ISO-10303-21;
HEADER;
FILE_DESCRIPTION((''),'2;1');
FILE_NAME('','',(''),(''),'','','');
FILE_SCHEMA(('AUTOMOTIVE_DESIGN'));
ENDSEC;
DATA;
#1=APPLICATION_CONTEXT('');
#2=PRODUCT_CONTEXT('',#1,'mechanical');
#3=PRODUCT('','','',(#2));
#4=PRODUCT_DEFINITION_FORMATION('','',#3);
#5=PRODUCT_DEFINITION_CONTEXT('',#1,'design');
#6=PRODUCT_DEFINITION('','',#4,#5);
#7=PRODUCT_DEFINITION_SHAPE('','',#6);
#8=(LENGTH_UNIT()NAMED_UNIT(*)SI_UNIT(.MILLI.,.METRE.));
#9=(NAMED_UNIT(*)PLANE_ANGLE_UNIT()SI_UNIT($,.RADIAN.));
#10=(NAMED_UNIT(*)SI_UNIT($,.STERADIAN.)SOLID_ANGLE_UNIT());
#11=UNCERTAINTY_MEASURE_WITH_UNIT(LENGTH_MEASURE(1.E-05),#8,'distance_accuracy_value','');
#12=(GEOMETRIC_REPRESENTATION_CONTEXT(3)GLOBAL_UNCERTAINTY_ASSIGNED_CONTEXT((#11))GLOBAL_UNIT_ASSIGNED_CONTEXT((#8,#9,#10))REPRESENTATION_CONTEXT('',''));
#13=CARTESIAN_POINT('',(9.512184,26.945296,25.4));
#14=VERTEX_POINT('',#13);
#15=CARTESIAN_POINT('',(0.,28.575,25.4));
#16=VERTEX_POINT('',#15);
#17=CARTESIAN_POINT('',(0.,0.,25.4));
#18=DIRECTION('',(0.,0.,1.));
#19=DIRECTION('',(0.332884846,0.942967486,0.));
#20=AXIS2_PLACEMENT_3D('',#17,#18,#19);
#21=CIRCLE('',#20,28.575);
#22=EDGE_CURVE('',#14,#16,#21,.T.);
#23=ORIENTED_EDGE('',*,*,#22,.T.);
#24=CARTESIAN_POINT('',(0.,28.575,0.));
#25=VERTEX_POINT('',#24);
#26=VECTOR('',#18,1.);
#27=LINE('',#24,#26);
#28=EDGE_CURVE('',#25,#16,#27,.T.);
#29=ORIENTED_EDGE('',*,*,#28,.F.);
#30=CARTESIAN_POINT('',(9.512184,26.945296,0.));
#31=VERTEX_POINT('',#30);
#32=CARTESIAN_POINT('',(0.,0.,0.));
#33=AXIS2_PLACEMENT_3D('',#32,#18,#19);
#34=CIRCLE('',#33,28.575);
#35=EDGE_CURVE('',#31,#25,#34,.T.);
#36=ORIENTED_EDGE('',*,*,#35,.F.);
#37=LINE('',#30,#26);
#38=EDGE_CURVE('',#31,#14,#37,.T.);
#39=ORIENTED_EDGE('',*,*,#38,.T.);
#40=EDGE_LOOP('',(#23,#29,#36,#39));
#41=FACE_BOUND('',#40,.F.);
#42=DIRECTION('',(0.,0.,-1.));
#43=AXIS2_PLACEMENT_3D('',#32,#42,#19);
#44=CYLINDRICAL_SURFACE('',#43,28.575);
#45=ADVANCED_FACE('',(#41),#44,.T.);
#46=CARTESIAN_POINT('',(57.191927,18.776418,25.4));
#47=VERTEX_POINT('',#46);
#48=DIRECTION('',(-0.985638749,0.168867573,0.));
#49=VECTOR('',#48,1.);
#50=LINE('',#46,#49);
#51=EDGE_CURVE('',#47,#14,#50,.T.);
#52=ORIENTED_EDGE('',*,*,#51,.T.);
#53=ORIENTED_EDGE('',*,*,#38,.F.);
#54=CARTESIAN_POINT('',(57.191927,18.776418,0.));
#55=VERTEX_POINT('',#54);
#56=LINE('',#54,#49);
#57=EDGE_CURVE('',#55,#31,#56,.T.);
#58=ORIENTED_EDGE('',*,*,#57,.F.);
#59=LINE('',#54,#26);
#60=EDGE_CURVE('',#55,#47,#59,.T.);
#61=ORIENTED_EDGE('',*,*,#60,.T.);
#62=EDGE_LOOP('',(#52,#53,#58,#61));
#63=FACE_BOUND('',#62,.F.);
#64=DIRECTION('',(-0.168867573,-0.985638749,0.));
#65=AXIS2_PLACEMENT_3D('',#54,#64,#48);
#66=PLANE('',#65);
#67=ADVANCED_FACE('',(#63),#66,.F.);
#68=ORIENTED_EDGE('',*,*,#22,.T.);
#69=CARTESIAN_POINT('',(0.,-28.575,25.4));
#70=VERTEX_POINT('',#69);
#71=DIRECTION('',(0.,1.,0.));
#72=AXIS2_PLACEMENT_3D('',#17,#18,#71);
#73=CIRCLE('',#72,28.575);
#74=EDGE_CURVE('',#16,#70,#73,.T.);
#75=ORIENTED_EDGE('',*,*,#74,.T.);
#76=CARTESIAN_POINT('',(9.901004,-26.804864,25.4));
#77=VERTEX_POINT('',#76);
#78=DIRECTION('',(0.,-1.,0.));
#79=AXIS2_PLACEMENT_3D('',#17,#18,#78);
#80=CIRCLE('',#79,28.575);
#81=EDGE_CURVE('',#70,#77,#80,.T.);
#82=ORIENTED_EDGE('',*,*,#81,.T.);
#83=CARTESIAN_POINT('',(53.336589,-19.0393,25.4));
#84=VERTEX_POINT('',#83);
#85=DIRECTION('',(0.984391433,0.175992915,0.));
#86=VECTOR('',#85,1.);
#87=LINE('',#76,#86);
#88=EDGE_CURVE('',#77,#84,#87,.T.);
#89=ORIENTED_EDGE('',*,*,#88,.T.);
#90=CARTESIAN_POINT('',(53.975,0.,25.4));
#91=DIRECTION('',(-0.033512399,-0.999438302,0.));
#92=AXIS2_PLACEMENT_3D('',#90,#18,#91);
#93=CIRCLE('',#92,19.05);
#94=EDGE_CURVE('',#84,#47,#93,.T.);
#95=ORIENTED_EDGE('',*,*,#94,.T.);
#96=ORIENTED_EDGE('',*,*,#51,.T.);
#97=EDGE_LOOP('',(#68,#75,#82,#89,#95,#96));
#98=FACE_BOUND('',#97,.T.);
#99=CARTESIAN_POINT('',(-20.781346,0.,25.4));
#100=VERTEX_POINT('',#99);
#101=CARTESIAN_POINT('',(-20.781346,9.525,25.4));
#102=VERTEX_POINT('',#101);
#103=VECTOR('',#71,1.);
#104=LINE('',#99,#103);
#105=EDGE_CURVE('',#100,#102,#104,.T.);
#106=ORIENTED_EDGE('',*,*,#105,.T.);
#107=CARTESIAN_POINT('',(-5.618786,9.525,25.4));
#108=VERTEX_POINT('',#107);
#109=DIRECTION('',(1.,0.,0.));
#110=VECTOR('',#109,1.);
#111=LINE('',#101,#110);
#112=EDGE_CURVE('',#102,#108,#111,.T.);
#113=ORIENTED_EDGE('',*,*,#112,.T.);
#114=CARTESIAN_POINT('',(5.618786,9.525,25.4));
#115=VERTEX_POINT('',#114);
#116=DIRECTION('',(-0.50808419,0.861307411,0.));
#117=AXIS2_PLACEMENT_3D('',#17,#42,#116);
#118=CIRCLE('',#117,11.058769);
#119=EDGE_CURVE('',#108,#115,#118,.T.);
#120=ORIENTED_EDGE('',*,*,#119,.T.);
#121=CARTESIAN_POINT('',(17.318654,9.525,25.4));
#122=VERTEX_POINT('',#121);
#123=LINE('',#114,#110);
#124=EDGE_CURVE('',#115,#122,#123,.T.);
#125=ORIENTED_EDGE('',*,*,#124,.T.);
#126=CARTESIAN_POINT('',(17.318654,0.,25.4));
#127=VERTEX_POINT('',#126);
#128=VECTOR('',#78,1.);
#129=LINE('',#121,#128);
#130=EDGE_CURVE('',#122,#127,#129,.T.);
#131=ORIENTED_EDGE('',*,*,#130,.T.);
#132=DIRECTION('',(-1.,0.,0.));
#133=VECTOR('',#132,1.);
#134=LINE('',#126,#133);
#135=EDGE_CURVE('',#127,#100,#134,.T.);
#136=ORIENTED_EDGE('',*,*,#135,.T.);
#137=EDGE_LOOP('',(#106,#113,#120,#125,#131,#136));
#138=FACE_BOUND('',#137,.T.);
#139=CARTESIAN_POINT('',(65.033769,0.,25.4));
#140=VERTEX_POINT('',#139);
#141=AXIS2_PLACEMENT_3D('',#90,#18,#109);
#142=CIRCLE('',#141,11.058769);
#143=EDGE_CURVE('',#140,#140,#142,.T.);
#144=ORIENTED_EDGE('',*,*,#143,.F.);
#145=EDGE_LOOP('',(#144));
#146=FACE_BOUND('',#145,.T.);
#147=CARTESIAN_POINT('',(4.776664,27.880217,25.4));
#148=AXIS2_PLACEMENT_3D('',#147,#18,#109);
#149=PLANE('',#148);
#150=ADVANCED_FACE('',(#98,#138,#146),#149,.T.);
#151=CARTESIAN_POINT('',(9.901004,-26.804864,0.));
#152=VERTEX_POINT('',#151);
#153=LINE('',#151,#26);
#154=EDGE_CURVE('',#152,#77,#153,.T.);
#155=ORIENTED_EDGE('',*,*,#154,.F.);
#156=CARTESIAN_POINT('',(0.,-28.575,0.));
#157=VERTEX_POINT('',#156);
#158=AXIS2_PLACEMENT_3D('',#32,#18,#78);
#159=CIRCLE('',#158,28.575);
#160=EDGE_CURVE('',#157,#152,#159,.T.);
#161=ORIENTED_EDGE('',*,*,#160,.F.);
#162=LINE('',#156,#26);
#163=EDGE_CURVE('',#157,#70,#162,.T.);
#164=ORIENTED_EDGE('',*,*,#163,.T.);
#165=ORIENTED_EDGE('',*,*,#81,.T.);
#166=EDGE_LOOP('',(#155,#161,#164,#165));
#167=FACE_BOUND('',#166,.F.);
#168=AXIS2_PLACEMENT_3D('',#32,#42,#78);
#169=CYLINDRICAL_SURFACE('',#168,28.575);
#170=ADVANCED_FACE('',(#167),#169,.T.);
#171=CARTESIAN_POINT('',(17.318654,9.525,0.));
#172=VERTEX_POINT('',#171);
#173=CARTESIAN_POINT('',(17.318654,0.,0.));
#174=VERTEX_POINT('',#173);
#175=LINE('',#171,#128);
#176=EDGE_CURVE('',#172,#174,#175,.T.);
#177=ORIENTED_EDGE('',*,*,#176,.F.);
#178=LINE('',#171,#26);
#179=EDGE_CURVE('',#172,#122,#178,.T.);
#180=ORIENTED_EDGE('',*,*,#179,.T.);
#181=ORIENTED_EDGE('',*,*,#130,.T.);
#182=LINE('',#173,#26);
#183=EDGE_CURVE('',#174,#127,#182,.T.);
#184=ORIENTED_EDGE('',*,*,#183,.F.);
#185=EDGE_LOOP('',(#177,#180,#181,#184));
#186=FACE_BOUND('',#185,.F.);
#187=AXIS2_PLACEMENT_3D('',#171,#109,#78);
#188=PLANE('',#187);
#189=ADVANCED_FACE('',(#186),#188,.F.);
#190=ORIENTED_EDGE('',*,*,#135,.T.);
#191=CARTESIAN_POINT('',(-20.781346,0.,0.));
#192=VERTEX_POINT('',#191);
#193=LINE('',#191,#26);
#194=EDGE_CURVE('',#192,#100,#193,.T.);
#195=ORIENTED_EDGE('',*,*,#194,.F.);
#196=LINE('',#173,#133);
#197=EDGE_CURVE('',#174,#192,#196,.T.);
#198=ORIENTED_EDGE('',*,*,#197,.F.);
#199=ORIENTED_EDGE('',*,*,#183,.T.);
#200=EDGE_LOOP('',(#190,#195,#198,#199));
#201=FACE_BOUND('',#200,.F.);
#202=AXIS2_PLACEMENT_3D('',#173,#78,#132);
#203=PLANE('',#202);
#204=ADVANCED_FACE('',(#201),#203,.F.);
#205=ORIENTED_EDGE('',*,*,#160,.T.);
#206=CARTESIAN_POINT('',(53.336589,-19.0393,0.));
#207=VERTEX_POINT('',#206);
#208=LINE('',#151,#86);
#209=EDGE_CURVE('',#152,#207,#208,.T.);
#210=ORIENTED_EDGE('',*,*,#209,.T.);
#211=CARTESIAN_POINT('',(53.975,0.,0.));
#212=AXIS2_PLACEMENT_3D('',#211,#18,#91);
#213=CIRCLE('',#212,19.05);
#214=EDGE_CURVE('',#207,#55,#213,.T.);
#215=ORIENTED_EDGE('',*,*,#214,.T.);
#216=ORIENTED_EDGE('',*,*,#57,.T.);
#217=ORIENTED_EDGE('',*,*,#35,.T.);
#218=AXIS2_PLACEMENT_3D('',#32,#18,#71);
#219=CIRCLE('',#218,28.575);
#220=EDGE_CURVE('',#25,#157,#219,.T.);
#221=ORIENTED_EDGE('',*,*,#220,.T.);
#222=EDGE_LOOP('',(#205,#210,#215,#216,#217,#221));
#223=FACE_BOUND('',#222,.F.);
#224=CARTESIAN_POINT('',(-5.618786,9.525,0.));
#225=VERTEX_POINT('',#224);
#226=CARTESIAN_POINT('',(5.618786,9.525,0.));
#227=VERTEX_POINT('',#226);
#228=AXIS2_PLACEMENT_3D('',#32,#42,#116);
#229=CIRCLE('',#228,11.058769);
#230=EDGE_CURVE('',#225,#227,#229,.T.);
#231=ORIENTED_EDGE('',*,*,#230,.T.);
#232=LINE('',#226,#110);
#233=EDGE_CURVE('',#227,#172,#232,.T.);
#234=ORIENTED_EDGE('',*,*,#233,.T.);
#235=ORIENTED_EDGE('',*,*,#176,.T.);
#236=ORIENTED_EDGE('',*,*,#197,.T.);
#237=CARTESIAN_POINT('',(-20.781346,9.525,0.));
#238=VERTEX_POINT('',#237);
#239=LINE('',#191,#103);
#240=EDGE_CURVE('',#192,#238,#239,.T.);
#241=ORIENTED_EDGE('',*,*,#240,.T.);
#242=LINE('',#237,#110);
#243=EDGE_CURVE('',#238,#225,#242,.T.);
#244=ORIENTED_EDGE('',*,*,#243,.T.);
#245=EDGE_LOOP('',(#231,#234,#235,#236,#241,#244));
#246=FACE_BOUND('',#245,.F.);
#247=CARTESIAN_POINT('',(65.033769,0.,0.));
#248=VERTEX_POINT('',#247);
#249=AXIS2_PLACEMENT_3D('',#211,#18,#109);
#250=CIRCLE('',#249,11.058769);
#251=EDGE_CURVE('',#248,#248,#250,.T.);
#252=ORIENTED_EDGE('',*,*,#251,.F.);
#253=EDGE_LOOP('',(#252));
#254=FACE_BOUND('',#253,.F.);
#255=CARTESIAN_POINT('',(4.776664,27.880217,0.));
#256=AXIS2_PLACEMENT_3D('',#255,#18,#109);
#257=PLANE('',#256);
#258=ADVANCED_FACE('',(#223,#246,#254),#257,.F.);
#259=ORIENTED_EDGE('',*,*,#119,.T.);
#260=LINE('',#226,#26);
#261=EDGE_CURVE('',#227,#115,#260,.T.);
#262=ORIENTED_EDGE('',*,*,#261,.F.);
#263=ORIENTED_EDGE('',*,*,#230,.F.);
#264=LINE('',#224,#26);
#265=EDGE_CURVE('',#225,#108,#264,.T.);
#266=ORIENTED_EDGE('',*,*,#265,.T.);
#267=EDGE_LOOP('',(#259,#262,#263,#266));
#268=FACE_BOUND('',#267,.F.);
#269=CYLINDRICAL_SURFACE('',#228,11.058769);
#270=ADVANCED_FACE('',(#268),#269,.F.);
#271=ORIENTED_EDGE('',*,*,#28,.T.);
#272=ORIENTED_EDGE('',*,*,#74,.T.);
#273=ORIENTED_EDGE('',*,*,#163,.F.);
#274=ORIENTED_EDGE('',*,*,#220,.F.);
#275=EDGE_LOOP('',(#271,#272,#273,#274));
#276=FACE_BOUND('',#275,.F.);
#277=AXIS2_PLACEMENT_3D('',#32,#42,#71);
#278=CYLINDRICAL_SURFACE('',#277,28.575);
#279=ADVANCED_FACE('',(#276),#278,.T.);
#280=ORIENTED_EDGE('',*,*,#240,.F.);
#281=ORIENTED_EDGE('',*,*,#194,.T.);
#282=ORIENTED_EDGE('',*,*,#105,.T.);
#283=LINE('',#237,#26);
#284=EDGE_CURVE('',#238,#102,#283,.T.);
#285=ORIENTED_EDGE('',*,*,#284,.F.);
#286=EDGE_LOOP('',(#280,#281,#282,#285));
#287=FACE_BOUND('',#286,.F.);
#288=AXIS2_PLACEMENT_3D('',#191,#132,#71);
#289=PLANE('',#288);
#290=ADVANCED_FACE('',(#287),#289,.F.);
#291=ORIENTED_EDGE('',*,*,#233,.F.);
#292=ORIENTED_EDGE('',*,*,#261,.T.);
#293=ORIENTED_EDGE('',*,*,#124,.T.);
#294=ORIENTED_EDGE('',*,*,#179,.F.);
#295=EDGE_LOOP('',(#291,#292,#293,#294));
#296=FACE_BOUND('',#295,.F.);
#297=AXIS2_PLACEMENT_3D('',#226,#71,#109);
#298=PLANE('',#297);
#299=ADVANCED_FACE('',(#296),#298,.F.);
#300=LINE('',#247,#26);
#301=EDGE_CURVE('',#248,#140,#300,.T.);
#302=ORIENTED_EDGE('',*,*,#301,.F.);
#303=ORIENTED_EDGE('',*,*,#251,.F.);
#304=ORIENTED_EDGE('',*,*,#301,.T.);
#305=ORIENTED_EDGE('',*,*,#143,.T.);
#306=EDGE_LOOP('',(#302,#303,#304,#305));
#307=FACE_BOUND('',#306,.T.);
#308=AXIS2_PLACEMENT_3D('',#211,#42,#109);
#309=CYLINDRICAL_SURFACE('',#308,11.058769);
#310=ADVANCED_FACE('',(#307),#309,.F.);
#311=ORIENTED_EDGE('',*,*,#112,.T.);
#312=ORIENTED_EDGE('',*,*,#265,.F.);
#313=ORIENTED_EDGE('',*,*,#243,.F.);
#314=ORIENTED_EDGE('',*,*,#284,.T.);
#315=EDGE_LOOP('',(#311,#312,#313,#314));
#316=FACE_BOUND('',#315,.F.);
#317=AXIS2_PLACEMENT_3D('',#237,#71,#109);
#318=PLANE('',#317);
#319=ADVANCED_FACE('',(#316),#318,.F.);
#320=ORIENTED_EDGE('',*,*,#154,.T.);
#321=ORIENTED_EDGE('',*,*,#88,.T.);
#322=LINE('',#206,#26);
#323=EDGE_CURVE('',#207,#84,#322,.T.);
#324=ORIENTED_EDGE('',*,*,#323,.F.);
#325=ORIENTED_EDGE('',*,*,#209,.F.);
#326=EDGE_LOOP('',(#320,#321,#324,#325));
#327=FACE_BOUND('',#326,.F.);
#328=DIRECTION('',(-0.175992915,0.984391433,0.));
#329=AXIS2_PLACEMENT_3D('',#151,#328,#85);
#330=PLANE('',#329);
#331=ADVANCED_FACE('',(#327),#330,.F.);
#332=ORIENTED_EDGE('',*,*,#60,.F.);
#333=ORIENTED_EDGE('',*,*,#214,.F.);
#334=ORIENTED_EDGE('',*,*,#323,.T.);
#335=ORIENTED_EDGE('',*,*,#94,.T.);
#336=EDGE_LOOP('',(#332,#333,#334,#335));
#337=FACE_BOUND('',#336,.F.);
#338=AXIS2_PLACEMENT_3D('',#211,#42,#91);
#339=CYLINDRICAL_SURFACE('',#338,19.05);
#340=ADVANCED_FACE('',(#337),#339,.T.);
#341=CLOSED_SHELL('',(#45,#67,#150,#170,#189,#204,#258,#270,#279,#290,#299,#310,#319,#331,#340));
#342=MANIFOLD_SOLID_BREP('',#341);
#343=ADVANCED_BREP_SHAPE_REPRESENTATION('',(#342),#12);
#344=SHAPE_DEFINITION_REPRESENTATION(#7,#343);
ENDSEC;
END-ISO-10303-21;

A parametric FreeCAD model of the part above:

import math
import FreeCAD as App
import Part
import Sketcher
from FreeCAD import Vector
Q = App.Units.Quantity

doc = App.newDocument("Part")
body = doc.addObject("PartDesign::Body", "Body")

sketch1 = body.newObject("Sketcher::SketchObject", "Sketch")
sketch1.AttachmentSupport = (doc.getObject("XY_Plane"), [""])
sketch1.MapMode = "FlatFace"
sketch1.addGeometry(Part.ArcOfCircle(Part.Circle(Vector(0, 0, 0), Vector(0, 0, 1), 29), math.radians(70.56), math.radians(90)), False)
sketch1.addGeometry(Part.ArcOfCircle(Part.Circle(Vector(0, 0, 0), Vector(0, 0, 1), 29), math.radians(90), math.radians(270)), False)
sketch1.addGeometry(Part.ArcOfCircle(Part.Circle(Vector(0, 0, 0), Vector(0, 0, 1), 29), math.radians(-90), math.radians(-70)), False)
sketch1.addGeometry(Part.LineSegment(Vector(10, -27, 0), Vector(53, -19, 0)), False)
sketch1.addGeometry(Part.ArcOfCircle(Part.Circle(Vector(54, 0, 0), Vector(0, 0, 1), 19), math.radians(-92), math.radians(80)), False)
sketch1.addGeometry(Part.LineSegment(Vector(57, 19, 0), Vector(10, 27, 0)), False)
sketch1.addGeometry(Part.LineSegment(Vector(17, 10, 0), Vector(17, 0, 0)), False)
sketch1.addGeometry(Part.LineSegment(Vector(17, 0, 0), Vector(-21, 0, 0)), False)
sketch1.addGeometry(Part.LineSegment(Vector(-21, 0, 0), Vector(-21, 10, 0)), False)
sketch1.addGeometry(Part.LineSegment(Vector(-21, 10, 0), Vector(-6, 10, 0)), False)
sketch1.addGeometry(Part.ArcOfCircle(Part.Circle(Vector(0, 0, 0), Vector(0, 0, 1), 11), math.radians(59), math.radians(121)), False)
sketch1.addGeometry(Part.LineSegment(Vector(6, 10, 0), Vector(17, 10, 0)), False)
sketch1.addGeometry(Part.Circle(Vector(54, 0, 0), Vector(0, 0, 1), 11), False)
sketch1.addConstraint(Sketcher.Constraint("Tangent", 0, 2, 1, 1))
sketch1.addConstraint(Sketcher.Constraint("Tangent", 1, 2, 2, 1))
sketch1.addConstraint(Sketcher.Constraint("Coincident", 2, 2, 3, 1))
sketch1.addConstraint(Sketcher.Constraint("Coincident", 3, 2, 4, 1))
sketch1.addConstraint(Sketcher.Constraint("Tangent", 4, 2, 5, 1))
sketch1.addConstraint(Sketcher.Constraint("Coincident", 5, 2, 0, 1))
sketch1.addConstraint(Sketcher.Constraint("Coincident", 6, 2, 7, 1))
sketch1.addConstraint(Sketcher.Constraint("Coincident", 7, 2, 8, 1))
sketch1.addConstraint(Sketcher.Constraint("Coincident", 8, 2, 9, 1))
sketch1.addConstraint(Sketcher.Constraint("Coincident", 9, 2, 10, 2))
sketch1.addConstraint(Sketcher.Constraint("Coincident", 10, 1, 11, 1))
sketch1.addConstraint(Sketcher.Constraint("Coincident", 11, 2, 6, 1))
sketch1.addConstraint(Sketcher.Constraint("Vertical", 6))
sketch1.addConstraint(Sketcher.Constraint("Horizontal", 7))
sketch1.addConstraint(Sketcher.Constraint("Vertical", 8))
sketch1.addConstraint(Sketcher.Constraint("Horizontal", 9))
sketch1.addConstraint(Sketcher.Constraint("Horizontal", 11))
sketch1.addConstraint(Sketcher.Constraint("Coincident", 0, 3, -1, 1))
sketch1.addConstraint(Sketcher.Constraint("Coincident", 10, 3, -1, 1))
sketch1.addConstraint(Sketcher.Constraint("Coincident", 12, 3, 4, 3))
sketch1.addConstraint(Sketcher.Constraint("Equal", 0, 1))
sketch1.addConstraint(Sketcher.Constraint("Equal", 1, 2))
sketch1.addConstraint(Sketcher.Constraint("Equal", 10, 12))
sketch1.addConstraint(Sketcher.Constraint("PointOnObject", 4, 3, -1))
sketch1.addConstraint(Sketcher.Constraint("PointOnObject", 0, 2, -2))
sketch1.addConstraint(Sketcher.Constraint("PointOnObject", 1, 2, -2))
sketch1.addConstraint(Sketcher.Constraint("PointOnObject", 6, 2, -1))
sketch1.addConstraint(Sketcher.Constraint("Horizontal", 9, 2, 10, 1))
sketch1.addConstraint(Sketcher.Constraint("Radius", 4, Q("0.75 in")))
sketch1.addConstraint(Sketcher.Constraint("DistanceX", 7, 2, 7, 1, Q("1.5 in")))
sketch1.addConstraint(Sketcher.Constraint("Radius", 0, Q("1.125 in")))
sketch1.addConstraint(Sketcher.Constraint("DistanceY", 6, 2, 6, 1, Q("0.375 in")))
sketch1.addConstraint(Sketcher.Constraint("Diameter", 12, Q("22.117539 mm")))
sketch1.addConstraint(Sketcher.Constraint("DistanceX", -1, 1, 4, 3, Q("2.125 in")))
sketch1.addConstraint(Sketcher.Constraint("Distance", 3, Q("44.124302 mm")))
sketch1.addConstraint(Sketcher.Constraint("DistanceX", 9, 1, 9, 2, Q("15.16256 mm")))
sketch1.addConstraint(Sketcher.Constraint("DistanceY", 3, 2, -1, 1, Q("19.0393 mm")))
sketch1.addConstraint(Sketcher.Constraint("Distance", 5, Q("48.374461 mm")))
pad1 = body.newObject("PartDesign::Pad", "Pad")
pad1.Profile = sketch1
pad1.Length = Q("1 in")

doc.recompute()
